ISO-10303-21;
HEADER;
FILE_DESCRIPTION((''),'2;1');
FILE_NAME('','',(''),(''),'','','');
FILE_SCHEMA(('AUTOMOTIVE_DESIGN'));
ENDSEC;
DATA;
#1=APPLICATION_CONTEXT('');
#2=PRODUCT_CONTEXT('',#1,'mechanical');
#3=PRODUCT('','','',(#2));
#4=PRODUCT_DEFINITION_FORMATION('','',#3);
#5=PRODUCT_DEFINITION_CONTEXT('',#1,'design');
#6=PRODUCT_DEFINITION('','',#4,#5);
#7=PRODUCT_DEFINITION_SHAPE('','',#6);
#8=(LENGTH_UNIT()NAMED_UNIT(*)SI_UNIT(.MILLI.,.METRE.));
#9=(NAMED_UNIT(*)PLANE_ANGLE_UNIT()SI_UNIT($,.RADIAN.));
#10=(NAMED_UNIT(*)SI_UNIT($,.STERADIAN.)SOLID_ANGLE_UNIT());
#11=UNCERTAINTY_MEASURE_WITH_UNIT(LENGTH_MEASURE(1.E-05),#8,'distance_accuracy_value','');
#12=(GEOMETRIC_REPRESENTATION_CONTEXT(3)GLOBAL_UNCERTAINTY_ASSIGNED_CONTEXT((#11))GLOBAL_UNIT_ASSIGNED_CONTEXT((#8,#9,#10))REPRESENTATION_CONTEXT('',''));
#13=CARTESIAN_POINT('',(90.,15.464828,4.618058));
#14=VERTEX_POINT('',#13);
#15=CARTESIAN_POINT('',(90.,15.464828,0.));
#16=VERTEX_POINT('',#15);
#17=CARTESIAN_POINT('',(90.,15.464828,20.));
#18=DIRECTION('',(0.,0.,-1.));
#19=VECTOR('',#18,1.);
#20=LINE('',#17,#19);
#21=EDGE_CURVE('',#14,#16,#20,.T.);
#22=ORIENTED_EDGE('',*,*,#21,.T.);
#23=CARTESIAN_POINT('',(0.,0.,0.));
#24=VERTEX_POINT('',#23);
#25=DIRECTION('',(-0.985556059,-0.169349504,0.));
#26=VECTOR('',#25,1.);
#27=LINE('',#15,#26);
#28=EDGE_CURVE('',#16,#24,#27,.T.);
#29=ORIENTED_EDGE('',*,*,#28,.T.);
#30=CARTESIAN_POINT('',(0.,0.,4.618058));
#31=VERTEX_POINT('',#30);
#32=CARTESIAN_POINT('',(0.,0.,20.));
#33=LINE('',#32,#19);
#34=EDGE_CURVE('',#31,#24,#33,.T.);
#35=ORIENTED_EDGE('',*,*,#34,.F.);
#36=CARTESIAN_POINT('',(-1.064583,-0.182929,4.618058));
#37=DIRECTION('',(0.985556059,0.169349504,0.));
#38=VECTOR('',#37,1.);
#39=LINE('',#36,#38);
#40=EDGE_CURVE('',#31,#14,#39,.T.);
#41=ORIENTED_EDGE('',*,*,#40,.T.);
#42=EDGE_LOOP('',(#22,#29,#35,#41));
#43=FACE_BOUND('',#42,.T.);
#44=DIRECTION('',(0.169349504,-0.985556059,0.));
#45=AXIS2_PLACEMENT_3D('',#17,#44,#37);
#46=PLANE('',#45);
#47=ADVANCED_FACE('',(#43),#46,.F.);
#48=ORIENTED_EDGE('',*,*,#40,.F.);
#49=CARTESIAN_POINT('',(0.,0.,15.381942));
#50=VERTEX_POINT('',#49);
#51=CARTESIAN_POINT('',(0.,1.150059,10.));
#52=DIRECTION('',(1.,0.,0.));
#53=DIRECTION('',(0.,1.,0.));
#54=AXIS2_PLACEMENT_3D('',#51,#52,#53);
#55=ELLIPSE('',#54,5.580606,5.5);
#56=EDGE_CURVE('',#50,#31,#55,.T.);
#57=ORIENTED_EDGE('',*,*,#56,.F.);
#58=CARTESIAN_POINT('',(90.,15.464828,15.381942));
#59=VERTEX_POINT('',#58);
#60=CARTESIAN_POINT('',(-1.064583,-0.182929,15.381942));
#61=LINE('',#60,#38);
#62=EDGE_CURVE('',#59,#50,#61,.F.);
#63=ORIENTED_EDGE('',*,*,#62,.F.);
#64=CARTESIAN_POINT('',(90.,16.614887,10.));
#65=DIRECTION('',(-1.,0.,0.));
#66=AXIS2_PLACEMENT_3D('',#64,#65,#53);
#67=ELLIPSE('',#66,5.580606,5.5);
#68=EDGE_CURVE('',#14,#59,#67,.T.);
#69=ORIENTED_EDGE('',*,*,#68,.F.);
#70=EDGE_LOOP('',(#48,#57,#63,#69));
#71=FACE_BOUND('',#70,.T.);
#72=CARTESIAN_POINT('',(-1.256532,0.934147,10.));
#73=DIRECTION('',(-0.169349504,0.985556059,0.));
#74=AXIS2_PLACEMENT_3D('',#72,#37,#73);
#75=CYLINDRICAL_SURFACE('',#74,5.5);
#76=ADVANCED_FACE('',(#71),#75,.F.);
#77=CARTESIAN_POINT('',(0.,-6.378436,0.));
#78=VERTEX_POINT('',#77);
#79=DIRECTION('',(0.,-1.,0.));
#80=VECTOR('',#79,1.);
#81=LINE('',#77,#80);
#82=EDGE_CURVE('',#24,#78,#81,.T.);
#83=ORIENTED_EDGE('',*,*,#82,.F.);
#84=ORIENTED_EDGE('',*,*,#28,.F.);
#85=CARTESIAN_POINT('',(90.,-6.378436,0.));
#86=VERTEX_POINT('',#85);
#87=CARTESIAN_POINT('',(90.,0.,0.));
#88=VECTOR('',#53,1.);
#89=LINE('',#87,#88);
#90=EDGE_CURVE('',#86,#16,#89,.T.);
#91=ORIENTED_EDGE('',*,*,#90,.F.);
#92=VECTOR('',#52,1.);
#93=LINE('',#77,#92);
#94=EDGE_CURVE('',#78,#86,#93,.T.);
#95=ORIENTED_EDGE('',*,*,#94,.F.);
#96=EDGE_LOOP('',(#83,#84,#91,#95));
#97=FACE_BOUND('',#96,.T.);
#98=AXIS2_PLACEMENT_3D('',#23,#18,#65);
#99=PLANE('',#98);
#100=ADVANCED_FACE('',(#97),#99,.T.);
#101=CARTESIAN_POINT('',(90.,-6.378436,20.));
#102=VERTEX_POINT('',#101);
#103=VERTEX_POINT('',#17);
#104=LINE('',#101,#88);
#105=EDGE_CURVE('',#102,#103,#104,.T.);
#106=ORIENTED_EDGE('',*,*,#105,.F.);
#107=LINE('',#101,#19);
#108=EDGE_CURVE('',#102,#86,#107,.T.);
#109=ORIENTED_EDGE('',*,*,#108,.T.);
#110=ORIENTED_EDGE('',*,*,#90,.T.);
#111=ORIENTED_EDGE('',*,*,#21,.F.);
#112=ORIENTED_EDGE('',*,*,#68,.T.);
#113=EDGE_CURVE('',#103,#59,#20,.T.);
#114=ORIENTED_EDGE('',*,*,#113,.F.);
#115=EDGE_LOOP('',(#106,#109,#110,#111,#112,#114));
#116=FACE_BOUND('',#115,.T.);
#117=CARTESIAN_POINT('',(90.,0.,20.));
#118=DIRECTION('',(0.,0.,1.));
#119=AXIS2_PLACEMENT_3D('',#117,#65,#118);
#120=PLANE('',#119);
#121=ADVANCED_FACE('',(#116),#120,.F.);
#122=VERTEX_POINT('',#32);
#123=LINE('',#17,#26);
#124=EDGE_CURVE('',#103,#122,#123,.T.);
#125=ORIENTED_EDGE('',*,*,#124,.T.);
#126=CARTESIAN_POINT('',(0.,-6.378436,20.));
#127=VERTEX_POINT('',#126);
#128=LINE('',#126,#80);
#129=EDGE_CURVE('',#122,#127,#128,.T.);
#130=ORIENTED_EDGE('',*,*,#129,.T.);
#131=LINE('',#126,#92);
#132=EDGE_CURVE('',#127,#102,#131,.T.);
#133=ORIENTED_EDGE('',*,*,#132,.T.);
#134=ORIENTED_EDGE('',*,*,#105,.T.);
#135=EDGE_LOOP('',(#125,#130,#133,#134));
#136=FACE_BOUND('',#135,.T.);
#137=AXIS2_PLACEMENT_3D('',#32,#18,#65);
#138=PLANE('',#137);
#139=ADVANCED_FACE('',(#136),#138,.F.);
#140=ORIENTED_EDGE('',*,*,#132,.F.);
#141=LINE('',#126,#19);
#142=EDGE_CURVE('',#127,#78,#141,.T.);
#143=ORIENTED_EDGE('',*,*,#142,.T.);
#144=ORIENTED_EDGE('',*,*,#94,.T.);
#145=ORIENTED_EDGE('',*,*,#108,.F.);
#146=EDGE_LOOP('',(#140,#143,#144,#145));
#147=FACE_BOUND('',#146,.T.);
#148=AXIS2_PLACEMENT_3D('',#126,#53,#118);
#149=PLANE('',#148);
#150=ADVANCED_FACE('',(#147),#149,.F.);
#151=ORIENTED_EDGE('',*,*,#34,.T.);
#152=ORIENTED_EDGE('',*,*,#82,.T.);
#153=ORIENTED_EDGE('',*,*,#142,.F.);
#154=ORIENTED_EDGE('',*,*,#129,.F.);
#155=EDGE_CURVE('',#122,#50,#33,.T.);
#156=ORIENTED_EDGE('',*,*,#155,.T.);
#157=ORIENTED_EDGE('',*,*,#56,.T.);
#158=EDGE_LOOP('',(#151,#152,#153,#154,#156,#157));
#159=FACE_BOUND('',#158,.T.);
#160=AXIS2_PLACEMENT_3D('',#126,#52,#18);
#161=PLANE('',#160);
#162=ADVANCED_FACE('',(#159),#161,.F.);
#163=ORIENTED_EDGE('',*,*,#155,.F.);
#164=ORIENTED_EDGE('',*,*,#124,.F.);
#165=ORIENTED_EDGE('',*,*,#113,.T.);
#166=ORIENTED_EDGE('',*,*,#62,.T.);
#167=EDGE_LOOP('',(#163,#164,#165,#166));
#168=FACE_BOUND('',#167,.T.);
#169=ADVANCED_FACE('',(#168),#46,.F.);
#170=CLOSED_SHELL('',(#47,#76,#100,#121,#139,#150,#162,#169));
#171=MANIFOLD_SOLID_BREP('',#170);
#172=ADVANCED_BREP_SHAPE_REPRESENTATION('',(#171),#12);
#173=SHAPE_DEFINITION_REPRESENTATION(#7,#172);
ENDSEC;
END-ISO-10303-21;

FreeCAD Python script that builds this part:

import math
import FreeCAD as App
import Part
import Sketcher

V = App.Vector
Q = App.Units.Quantity

doc = App.newDocument("Part")
body = doc.addObject("PartDesign::Body", "Body")

sketch1 = doc.addObject("Sketcher::SketchObject", "Sketch")
body.addObject(sketch1)
sketch1.AttachmentSupport = (doc.XY_Plane, [""])
sketch1.MapMode = "FlatFace"
sketch1.addGeometry([
    Part.LineSegment(V(90, 15, 0), V(0, 0, 0)),
    Part.LineSegment(V(0, 0, 0), V(0, -6, 0)),
    Part.LineSegment(V(0, -6, 0), V(90, -6, 0)),
    Part.LineSegment(V(90, -6, 0), V(90, 15, 0)),
], False)
sketch1.addConstraint([
    Sketcher.Constraint("Coincident", 0, 2, 1, 1),
    Sketcher.Constraint("Coincident", 1, 2, 2, 1),
    Sketcher.Constraint("Coincident", 2, 2, 3, 1),
    Sketcher.Constraint("Coincident", 3, 2, 0, 1),
    Sketcher.Constraint("Vertical", 1),
    Sketcher.Constraint("Horizontal", 2),
    Sketcher.Constraint("Vertical", 3),
    Sketcher.Constraint("Coincident", 0, 2, -1, 1),
    Sketcher.Constraint("DistanceX", 2, 1, 2, 2, 90.0),
    Sketcher.Constraint("Angle", 0, Q("-170.25 deg")),
    Sketcher.Constraint("DistanceY", 1, 2, 1, 1, 6.378436),
])
pad1 = doc.addObject("PartDesign::Pad", "Pad")
body.addObject(pad1)
pad1.Profile = sketch1
pad1.Length = 20

sketch2 = doc.addObject("Sketcher::SketchObject", "Sketch001")
body.addObject(sketch2)
sketch2.Placement = App.Placement(V(90, 15.464828, 0), App.Rotation(V(0, 0, -1), V(-0.169349504, 0.985556059, 0), V(0.985556059, 0.169349504, 0), "ZXY"))
sketch2.addGeometry([
    Part.LineSegment(V(-5, 0, 0), V(-15, 0, 0)),
    Part.ArcOfCircle(Part.Circle(V(-10, 1, 0), V(0, 0, 1), 6), math.radians(-168), math.radians(-12)),
], False)
sketch2.addConstraint([
    Sketcher.Constraint("Coincident", 0, 1, 1, 2),
    Sketcher.Constraint("Coincident", 1, 1, 0, 2),
    Sketcher.Constraint("Horizontal", 0),
    Sketcher.Constraint("PointOnObject", 0, 1, -1),
    Sketcher.Constraint("Radius", 1, 5.5),
    Sketcher.Constraint("DistanceX", 1, 3, -1, 1, 10.0),
    Sketcher.Constraint("DistanceX", 0, 2, 0, 1, 10.763884),
])
pocket1 = doc.addObject("PartDesign::Pocket", "Pocket")
body.addObject(pocket1)
pocket1.Profile = sketch2
pocket1.Type = "ThroughAll"

doc.recompute()
